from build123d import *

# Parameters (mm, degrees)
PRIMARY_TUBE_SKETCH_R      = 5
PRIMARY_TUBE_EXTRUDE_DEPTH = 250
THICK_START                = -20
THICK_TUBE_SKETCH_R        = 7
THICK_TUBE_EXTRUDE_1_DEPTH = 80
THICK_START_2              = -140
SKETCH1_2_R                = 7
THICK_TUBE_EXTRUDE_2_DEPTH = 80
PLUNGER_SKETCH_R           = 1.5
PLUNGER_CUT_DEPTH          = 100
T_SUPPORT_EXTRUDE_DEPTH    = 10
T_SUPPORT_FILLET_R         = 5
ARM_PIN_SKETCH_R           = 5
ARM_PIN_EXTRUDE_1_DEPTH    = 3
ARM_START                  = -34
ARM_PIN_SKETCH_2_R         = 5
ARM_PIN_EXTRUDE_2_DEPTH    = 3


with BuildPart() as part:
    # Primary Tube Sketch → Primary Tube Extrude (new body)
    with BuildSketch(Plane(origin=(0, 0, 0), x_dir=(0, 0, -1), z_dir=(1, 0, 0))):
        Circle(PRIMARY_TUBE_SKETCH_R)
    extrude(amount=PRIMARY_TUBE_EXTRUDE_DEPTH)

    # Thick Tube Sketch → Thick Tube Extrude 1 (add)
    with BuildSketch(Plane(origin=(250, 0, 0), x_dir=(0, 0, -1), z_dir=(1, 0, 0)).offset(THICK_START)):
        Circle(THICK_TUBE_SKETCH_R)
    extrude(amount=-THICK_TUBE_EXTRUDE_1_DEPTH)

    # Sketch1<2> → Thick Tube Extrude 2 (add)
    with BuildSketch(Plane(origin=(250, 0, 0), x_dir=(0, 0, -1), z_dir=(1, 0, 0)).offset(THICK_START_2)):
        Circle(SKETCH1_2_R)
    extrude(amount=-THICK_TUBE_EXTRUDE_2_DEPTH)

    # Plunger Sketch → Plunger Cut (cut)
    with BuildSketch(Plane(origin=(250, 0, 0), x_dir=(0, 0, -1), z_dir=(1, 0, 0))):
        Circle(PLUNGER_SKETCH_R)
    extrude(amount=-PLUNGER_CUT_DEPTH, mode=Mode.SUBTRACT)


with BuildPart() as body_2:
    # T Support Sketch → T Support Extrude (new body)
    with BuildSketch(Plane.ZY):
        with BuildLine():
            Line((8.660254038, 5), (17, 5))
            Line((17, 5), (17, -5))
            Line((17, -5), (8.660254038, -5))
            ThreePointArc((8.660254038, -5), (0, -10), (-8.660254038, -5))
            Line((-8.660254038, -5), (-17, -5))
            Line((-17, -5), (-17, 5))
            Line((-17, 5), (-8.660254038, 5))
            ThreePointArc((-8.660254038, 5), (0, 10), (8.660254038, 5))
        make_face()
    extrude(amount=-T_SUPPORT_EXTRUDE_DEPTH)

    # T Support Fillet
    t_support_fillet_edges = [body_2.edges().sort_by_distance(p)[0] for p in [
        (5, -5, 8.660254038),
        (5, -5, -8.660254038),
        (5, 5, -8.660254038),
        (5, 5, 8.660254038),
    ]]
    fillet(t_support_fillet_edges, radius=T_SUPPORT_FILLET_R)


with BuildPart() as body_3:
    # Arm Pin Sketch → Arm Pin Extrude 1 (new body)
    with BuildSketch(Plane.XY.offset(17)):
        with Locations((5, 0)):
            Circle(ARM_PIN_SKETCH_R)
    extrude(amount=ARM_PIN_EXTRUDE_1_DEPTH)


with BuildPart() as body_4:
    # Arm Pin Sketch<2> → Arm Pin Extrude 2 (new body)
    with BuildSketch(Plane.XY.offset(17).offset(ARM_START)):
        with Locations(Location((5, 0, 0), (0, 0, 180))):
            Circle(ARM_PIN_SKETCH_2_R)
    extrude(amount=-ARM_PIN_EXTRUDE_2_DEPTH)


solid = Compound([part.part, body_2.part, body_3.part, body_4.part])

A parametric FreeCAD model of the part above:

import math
import FreeCAD as App
import Part
import Sketcher
Q = App.Units.Quantity


def edges_at(feature, points):
    """Names of the edges that pass closest to the given points."""
    edges = feature.Shape.Edges
    near = lambda p: min(range(len(edges)), key=lambda i: edges[i].distToShape(Part.Vertex(*p))[0])
    return sorted({f"Edge{near(p) + 1}" for p in points})

doc = App.newDocument("Part")
body = doc.addObject("PartDesign::Body", "Body")

sketch1 = doc.addObject("Sketcher::SketchObject", "Sketch")
body.addObject(sketch1)
sketch1.AttachmentSupport = (doc.YZ_Plane, [""])
sketch1.MapMode = "FlatFace"
sketch1.addGeometry(Part.Circle(App.Vector(0, 0, 0), App.Vector(0, 0, 1), 5), False)
sketch1.addConstraint([
    Sketcher.Constraint("Coincident", 0, 3, -1, 1),
    Sketcher.Constraint("Diameter", 0, Q("10 mm")),
])
pad1 = doc.addObject("PartDesign::Pad", "Pad")
body.addObject(pad1)
pad1.Profile = sketch1
pad1.Length = 250

sketch2 = doc.addObject("Sketcher::SketchObject", "Sketch001")
body.addObject(sketch2)
sketch2.AttachmentSupport = (doc.YZ_Plane, [""])
sketch2.MapMode = "FlatFace"
sketch2.AttachmentOffset = App.Placement(App.Vector(0, 0, 230), App.Rotation())
sketch2.addGeometry(Part.Circle(App.Vector(0, 0, 0), App.Vector(0, 0, 1), 7), False)
sketch2.addConstraint([
    Sketcher.Constraint("Coincident", 0, 3, -1, 1),
    Sketcher.Constraint("Diameter", 0, Q("14 mm")),
])
pad2 = doc.addObject("PartDesign::Pad", "Pad001")
body.addObject(pad2)
pad2.Profile = sketch2
pad2.Length = 80
pad2.Reversed = True

sketch3 = doc.addObject("Sketcher::SketchObject", "Sketch002")
body.addObject(sketch3)
sketch3.AttachmentSupport = (doc.YZ_Plane, [""])
sketch3.MapMode = "FlatFace"
sketch3.AttachmentOffset = App.Placement(App.Vector(0, 0, 110), App.Rotation())
sketch3.addGeometry(Part.Circle(App.Vector(0, 0, 0), App.Vector(0, 0, 1), 7), False)
sketch3.addConstraint([
    Sketcher.Constraint("Coincident", 0, 3, -1, 1),
    Sketcher.Constraint("Diameter", 0, Q("14 mm")),
])
pad3 = doc.addObject("PartDesign::Pad", "Pad002")
body.addObject(pad3)
pad3.Profile = sketch3
pad3.Length = 80
pad3.Reversed = True

sketch4 = doc.addObject("Sketcher::SketchObject", "Sketch003")
body.addObject(sketch4)
sketch4.AttachmentSupport = (doc.YZ_Plane, [""])
sketch4.MapMode = "FlatFace"
sketch4.AttachmentOffset = App.Placement(App.Vector(0, 0, 250), App.Rotation())
sketch4.addGeometry(Part.Circle(App.Vector(0, 0, 0), App.Vector(0, 0, 1), 1.5), False)
sketch4.addConstraint([
    Sketcher.Constraint("Coincident", 0, 3, -1, 1),
    Sketcher.Constraint("Diameter", 0, Q("3 mm")),
])
pocket1 = doc.addObject("PartDesign::Pocket", "Pocket")
body.addObject(pocket1)
pocket1.Profile = sketch4
pocket1.Length = 100
body2 = doc.addObject("PartDesign::Body", "Body001")

sketch5 = doc.addObject("Sketcher::SketchObject", "Sketch004")
body2.addObject(sketch5)
sketch5.AttachmentSupport = (doc.getObject("YZ_Plane001"), [""])
sketch5.MapMode = "FlatFace"
sketch5.addGeometry([
    Part.LineSegment(App.Vector(5, 17, 0), App.Vector(5, 9, 0)),
    Part.ArcOfCircle(Part.Circle(App.Vector(0, 0, 0), App.Vector(0, 0, 1), 10), math.radians(-60), math.radians(60)),
    Part.LineSegment(App.Vector(5, -9, 0), App.Vector(5, -17, 0)),
    Part.LineSegment(App.Vector(5, -17, 0), App.Vector(-5, -17, 0)),
    Part.LineSegment(App.Vector(-5, -17, 0), App.Vector(-5, -9, 0)),
    Part.ArcOfCircle(Part.Circle(App.Vector(0, 0, 0), App.Vector(0, 0, 1), 10), math.radians(120), math.radians(240)),
    Part.LineSegment(App.Vector(-5, 9, 0), App.Vector(-5, 17, 0)),
    Part.LineSegment(App.Vector(-5, 17, 0), App.Vector(5, 17, 0)),
], False)
sketch5.addConstraint([
    Sketcher.Constraint("Coincident", 0, 2, 1, 2),
    Sketcher.Constraint("Coincident", 1, 1, 2, 1),
    Sketcher.Constraint("Coincident", 2, 2, 3, 1),
    Sketcher.Constraint("Coincident", 3, 2, 4, 1),
    Sketcher.Constraint("Coincident", 4, 2, 5, 2),
    Sketcher.Constraint("Coincident", 5, 1, 6, 1),
    Sketcher.Constraint("Coincident", 6, 2, 7, 1),
    Sketcher.Constraint("Coincident", 7, 2, 0, 1),
    Sketcher.Constraint("Vertical", 0),
    Sketcher.Constraint("Vertical", 2),
    Sketcher.Constraint("Horizontal", 3),
    Sketcher.Constraint("Vertical", 4),
    Sketcher.Constraint("Vertical", 6),
    Sketcher.Constraint("Horizontal", 7),
    Sketcher.Constraint("Coincident", 1, 3, -1, 1),
    Sketcher.Constraint("Coincident", 5, 3, -1, 1),
    Sketcher.Constraint("Equal", 1, 5),
    Sketcher.Constraint("Symmetric", 2, 2, 6, 2, -1, 1),
    Sketcher.Constraint("Horizontal", 1, 1, 4, 2),
    Sketcher.Constraint("Horizontal", 0, 2, 5, 1),
    Sketcher.Constraint("Radius", 1, Q("10 mm")),
    Sketcher.Constraint("DistanceX", 3, 2, 3, 1, Q("10 mm")),
    Sketcher.Constraint("DistanceY", 2, 2, -1, 1, Q("17 mm")),
])
pad4 = doc.addObject("PartDesign::Pad", "Pad003")
body2.addObject(pad4)
pad4.Profile = sketch5
pad4.Length = 10
doc.recompute()

fillet = doc.addObject("PartDesign::Fillet", "Fillet")
body2.addObject(fillet)
fillet.Base = (pad4, edges_at(pad4, [
    (5, -5, 8.66),
    (5, -5, -8.66),
    (5, 5, -8.66),
    (5, 5, 8.66),
]))
fillet.Radius = 5
body3 = doc.addObject("PartDesign::Body", "Body002")

sketch6 = doc.addObject("Sketcher::SketchObject", "Sketch005")
body3.addObject(sketch6)
sketch6.AttachmentSupport = (doc.getObject("XY_Plane002"), [""])
sketch6.MapMode = "FlatFace"
sketch6.AttachmentOffset = App.Placement(App.Vector(0, 0, 17), App.Rotation())
sketch6.addGeometry(Part.Circle(App.Vector(5, 0, 0), App.Vector(0, 0, 1), 5), False)
sketch6.addConstraint([
    Sketcher.Constraint("PointOnObject", 0, 3, -1),
    Sketcher.Constraint("Diameter", 0, Q("10 mm")),
    Sketcher.Constraint("DistanceX", -1, 1, 0, 3, Q("5 mm")),
])
pad5 = doc.addObject("PartDesign::Pad", "Pad004")
body3.addObject(pad5)
pad5.Profile = sketch6
pad5.Length = 3
body4 = doc.addObject("PartDesign::Body", "Body003")

sketch7 = doc.addObject("Sketcher::SketchObject", "Sketch006")
body4.addObject(sketch7)
sketch7.AttachmentSupport = (doc.getObject("XY_Plane003"), [""])
sketch7.MapMode = "FlatFace"
sketch7.AttachmentOffset = App.Placement(App.Vector(0, 0, -17), App.Rotation())
sketch7.addGeometry(Part.Circle(App.Vector(5, 0, 0), App.Vector(0, 0, 1), 5), False)
sketch7.addConstraint([
    Sketcher.Constraint("PointOnObject", 0, 3, -1),
    Sketcher.Constraint("Diameter", 0, Q("10 mm")),
    Sketcher.Constraint("DistanceX", -1, 1, 0, 3, Q("5 mm")),
])
pad6 = doc.addObject("PartDesign::Pad", "Pad005")
body4.addObject(pad6)
pad6.Profile = sketch7
pad6.Length = 3
pad6.Reversed = True

doc.recompute()
